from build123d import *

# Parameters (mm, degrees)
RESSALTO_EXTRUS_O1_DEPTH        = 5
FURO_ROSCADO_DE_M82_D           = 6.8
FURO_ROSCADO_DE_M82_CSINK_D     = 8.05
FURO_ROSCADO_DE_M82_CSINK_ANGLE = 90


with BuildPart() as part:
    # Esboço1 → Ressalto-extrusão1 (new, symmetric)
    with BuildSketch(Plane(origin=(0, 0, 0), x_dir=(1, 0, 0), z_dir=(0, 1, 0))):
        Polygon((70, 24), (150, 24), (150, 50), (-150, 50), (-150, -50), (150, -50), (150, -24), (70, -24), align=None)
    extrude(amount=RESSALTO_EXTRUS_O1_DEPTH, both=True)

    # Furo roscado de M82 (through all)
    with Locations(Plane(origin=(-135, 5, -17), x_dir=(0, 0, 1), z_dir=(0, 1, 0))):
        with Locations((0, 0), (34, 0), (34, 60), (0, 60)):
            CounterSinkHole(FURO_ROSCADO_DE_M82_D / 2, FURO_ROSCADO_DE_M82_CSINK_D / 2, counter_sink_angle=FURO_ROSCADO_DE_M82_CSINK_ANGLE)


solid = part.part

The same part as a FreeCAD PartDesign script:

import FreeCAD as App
import Part
import Sketcher

V = App.Vector
Q = App.Units.Quantity


def add_polygon(sketch, points):
    """Adds a closed chain of lines whose ends are joined by coincident constraints."""
    first, n = sketch.GeometryCount, len(points)
    for a, b in zip(points, points[1:] + points[:1]):
        sketch.addGeometry(Part.LineSegment(App.Vector(*a, 0), App.Vector(*b, 0)), False)
    for i in range(n):
        sketch.addConstraint(Sketcher.Constraint("Coincident", first + i, 2, first + (i + 1) % n, 1))

doc = App.newDocument("Part")
body = doc.addObject("PartDesign::Body", "Body")

# Sketch on XZ plane
sketch1 = body.newObject("Sketcher::SketchObject", "Sketch")
sketch1.AttachmentSupport = (doc.getObject("XZ_Plane"), [""])
sketch1.MapMode = "FlatFace"
add_polygon(sketch1, [(70, -24), (150, -24), (150, -50), (-150, -50), (-150, 50), (150, 50), (150, 24), (70, 24)])  # lines 0-7
sketch1.addConstraint([
    Sketcher.Constraint("Horizontal", 0),
    Sketcher.Constraint("Vertical", 1),
    Sketcher.Constraint("Horizontal", 2),
    Sketcher.Constraint("Vertical", 3),
    Sketcher.Constraint("Horizontal", 4),
    Sketcher.Constraint("Vertical", 5),
    Sketcher.Constraint("Horizontal", 6),
    Sketcher.Constraint("Vertical", 7),
    Sketcher.Constraint("Symmetric", 1, 2, 3, 2, -1, 1),
    Sketcher.Constraint("Symmetric", 0, 2, 5, 2, -1),
    Sketcher.Constraint("DistanceX", 0, 1, 0, 2, Q("80 mm")),
    Sketcher.Constraint("DistanceX", 2, 2, 2, 1, Q("300 mm")),
    Sketcher.Constraint("DistanceY", 1, 2, 1, 1, Q("26 mm")),
    Sketcher.Constraint("DistanceY", 3, 1, 3, 2, Q("100 mm")),
])
pad1 = body.newObject("PartDesign::Pad", "Pad")
pad1.Profile = sketch1
pad1.Length = 10
pad1.Midplane = True

# Sketch on XZ plane
sketch2 = body.newObject("Sketcher::SketchObject", "Sketch001")
sketch2.AttachmentSupport = (doc.getObject("XZ_Plane"), [""])
sketch2.MapMode = "FlatFace"
sketch2.AttachmentOffset = App.Placement(V(0, 0, -5), App.Rotation())
sketch2.addGeometry([
    Part.Circle(V(-135, -17, 0), V(0, 0, 1), 3.4),
    Part.Circle(V(-135, 17, 0), V(0, 0, 1), 3.4),
    Part.Circle(V(-75, 17, 0), V(0, 0, 1), 3.4),
    Part.Circle(V(-75, -17, 0), V(0, 0, 1), 3.4),
], False)
sketch2.addConstraint([
    Sketcher.Constraint("Equal", 0, 1),
    Sketcher.Constraint("Equal", 1, 2),
    Sketcher.Constraint("Equal", 2, 3),
    Sketcher.Constraint("Symmetric", 0, 3, 1, 3, -1),
    Sketcher.Constraint("Symmetric", 2, 3, 3, 3, -1),
    Sketcher.Constraint("Horizontal", 1, 3, 2, 3),
    Sketcher.Constraint("Diameter", 0, Q("6.8 mm")),
    Sketcher.Constraint("DistanceX", 0, 3, -1, 1, Q("135 mm")),
    Sketcher.Constraint("DistanceY", 0, 3, -1, 1, Q("17 mm")),
    Sketcher.Constraint("DistanceX", 2, 3, -1, 1, Q("75 mm")),
])
doc.recompute()
hole = body.newObject("PartDesign::Hole", "Hole")
hole.Profile = sketch2
hole.ThreadType = "None"
hole.Diameter = 6.8
hole.DepthType = "ThroughAll"
hole.HoleCutType = "Countersink"
hole.HoleCutDiameter = 8.05
hole.HoleCutCountersinkAngle = 90
hole.Reversed = True

doc.recompute()
